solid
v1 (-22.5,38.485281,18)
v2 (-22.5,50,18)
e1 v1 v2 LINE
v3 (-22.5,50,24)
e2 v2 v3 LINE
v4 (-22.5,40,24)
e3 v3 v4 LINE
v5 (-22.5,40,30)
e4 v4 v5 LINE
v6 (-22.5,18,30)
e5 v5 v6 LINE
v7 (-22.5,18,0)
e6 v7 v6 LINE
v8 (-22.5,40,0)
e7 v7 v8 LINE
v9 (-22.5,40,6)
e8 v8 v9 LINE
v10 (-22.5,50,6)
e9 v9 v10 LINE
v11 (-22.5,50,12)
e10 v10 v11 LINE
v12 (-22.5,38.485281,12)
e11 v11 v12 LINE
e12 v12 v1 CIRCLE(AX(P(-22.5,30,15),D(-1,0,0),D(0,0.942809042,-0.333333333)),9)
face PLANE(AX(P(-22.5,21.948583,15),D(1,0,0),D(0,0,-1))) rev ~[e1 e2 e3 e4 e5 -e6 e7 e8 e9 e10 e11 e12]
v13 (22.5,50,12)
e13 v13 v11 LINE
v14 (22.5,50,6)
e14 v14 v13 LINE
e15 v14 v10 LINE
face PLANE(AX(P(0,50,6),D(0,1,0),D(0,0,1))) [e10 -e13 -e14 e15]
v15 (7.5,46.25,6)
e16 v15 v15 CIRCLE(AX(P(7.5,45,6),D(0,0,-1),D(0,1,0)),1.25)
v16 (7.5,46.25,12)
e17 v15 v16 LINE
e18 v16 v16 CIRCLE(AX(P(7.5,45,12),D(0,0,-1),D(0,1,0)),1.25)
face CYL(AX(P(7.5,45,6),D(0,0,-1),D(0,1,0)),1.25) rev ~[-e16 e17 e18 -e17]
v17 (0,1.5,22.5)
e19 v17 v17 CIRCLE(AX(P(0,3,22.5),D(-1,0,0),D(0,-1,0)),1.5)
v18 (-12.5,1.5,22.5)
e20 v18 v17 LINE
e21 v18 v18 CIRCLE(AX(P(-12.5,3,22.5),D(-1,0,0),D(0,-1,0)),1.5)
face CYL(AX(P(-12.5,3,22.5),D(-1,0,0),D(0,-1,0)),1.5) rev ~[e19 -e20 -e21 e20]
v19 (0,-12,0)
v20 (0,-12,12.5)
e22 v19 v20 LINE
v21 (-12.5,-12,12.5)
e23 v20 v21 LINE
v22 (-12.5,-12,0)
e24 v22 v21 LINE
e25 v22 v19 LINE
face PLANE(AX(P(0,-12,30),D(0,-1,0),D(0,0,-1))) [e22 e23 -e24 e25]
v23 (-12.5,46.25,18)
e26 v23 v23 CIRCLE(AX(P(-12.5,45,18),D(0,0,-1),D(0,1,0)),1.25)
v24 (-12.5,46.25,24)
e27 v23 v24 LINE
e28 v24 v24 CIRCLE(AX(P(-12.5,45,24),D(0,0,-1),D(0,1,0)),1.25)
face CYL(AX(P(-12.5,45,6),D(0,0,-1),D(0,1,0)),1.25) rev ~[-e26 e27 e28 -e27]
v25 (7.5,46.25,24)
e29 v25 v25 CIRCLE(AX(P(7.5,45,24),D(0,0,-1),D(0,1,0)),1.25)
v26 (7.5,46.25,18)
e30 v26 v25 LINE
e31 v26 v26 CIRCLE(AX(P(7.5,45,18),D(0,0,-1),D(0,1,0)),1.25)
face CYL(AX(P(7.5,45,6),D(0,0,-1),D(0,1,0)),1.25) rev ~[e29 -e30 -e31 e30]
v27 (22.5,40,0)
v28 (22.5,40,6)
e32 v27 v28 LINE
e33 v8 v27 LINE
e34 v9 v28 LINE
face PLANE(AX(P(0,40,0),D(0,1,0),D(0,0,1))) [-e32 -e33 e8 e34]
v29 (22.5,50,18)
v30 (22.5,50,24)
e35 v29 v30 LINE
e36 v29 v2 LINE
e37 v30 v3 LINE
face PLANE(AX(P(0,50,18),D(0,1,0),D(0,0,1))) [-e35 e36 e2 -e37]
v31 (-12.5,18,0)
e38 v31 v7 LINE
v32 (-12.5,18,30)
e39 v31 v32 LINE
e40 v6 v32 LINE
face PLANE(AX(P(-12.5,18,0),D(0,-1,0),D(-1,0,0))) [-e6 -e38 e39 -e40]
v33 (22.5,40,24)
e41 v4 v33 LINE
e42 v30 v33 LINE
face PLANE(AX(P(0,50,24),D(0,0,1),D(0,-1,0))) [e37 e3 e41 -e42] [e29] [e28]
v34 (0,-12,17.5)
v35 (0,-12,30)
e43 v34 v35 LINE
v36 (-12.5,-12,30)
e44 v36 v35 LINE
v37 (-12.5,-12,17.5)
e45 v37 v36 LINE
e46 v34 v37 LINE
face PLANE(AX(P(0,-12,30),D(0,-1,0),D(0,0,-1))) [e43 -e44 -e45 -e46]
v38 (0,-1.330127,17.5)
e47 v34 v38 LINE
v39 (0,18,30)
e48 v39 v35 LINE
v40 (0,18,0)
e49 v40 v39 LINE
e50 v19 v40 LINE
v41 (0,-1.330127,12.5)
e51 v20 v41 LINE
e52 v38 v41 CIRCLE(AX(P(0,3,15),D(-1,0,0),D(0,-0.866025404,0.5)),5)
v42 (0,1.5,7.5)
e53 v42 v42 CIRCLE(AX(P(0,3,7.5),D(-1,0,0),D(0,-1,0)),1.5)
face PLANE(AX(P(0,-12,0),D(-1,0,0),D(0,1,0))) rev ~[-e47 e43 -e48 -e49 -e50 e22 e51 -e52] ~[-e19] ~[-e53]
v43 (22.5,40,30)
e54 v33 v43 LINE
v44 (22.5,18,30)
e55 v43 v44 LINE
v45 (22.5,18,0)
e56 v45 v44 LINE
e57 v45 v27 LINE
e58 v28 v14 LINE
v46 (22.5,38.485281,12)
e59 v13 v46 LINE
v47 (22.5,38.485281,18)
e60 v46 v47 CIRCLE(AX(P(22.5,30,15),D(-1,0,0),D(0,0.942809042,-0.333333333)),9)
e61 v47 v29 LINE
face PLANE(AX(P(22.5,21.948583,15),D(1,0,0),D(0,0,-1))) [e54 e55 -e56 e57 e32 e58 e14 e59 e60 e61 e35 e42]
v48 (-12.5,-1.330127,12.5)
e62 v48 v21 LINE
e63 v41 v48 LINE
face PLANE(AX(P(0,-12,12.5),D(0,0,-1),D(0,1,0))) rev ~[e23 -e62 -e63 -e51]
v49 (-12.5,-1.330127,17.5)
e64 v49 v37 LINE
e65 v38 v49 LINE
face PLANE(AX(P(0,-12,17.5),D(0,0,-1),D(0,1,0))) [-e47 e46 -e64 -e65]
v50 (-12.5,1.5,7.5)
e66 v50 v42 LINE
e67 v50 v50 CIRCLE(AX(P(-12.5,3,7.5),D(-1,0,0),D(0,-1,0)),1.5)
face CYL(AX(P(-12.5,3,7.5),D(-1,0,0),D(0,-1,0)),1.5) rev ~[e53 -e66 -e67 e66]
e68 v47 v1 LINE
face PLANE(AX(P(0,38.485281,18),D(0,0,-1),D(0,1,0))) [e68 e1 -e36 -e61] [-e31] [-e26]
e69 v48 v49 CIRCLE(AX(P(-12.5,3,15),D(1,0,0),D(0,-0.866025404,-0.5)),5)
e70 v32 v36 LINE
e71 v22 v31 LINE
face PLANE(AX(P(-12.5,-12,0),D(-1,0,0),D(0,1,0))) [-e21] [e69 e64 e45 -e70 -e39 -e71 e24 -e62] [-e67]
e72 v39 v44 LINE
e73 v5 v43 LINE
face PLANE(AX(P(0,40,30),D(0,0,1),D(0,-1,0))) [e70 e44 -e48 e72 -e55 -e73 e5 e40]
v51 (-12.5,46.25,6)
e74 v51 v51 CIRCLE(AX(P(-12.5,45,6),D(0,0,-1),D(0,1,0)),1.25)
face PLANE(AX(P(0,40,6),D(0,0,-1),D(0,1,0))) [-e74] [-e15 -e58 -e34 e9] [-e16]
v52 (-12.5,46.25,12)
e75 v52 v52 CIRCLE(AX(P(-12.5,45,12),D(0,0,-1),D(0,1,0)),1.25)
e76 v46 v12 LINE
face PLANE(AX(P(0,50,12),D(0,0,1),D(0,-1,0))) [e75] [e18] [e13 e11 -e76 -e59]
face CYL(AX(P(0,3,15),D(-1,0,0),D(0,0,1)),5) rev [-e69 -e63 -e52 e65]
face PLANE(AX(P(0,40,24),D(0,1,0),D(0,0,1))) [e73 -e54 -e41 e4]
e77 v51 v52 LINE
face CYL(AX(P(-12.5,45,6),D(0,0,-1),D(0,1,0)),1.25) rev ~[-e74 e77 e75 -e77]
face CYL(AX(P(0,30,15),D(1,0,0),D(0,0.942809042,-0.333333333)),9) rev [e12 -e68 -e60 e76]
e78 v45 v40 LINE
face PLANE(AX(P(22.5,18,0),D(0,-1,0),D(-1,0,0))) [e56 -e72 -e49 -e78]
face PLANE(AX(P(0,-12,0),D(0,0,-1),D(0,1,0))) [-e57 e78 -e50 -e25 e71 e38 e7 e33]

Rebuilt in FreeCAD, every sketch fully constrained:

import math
import FreeCAD as App
import Part
import Sketcher
from FreeCAD import Vector


def add_polygon(sketch, points):
    """Adds a closed chain of lines whose ends are joined by coincident constraints."""
    first, n = sketch.GeometryCount, len(points)
    for a, b in zip(points, points[1:] + points[:1]):
        sketch.addGeometry(Part.LineSegment(App.Vector(*a, 0), App.Vector(*b, 0)), False)
    for i in range(n):
        sketch.addConstraint(Sketcher.Constraint("Coincident", first + i, 2, first + (i + 1) % n, 1))

doc = App.newDocument("Part")
params = doc.addObject("Spreadsheet::Sheet", "Params")
for row, (alias, value) in enumerate([
    ("sketch1_diameter", "10 mm"),
    ("sketch1_radius", "9 mm"),
    ("sketch1_width", "10 mm"),
    ("sketch1_width2", "52 mm"),
    ("sketch1_height", "6 mm"),
    ("pad1_length", "45 mm"),
    ("sketch2_width", "10 mm"),
    ("sketch2_height", "30 mm"),
    ("pocket1_length", "45 mm"),
    ("sketch3_diameter", "3 mm"),
    ("pocket2_length", "45 mm"),
    ("sketch4_diameter", "3 mm"),
    ("pocket3_length", "45 mm"),
    ("sketch5_width", "10 mm"),
    ("sketch5_height", "30 mm"),
    ("pocket4_length", "45 mm"),
    ("sketch6_height", "30 mm"),
    ("sketch6_width", "12.5 mm"),
    ("pocket5_length", "45 mm"),
    ("sketch7_height", "5 mm"),
    ("pocket6_length", "45 mm"),
    ("sketch8_diameter", "2.5 mm"),
    ("pocket7_length", "150 mm"),
], start=1):
    params.set(f"A{row}", alias)
    params.set(f"B{row}", "=" + value)
    params.setAlias(f"B{row}", alias)

body = doc.addObject("PartDesign::Body", "Body")

# Sketch on YZ plane
sketch1 = doc.addObject("Sketcher::SketchObject", "Sketch")
body.addObject(sketch1)
sketch1.AttachmentSupport = (doc.YZ_Plane, [""])
sketch1.MapMode = "FlatFace"
sketch1.addGeometry([
    Part.LineSegment(Vector(50, 24, 0), Vector(40, 24, 0)),  # 0
    Part.LineSegment(Vector(40, 24, 0), Vector(40, 30, 0)),  # 1
    Part.LineSegment(Vector(40, 30, 0), Vector(-12, 30, 0)),  # 2
    Part.LineSegment(Vector(-12, 30, 0), Vector(-12, 0, 0)),  # 3
    Part.LineSegment(Vector(-12, 0, 0), Vector(40, 0, 0)),  # 4
    Part.LineSegment(Vector(40, 0, 0), Vector(40, 6, 0)),  # 5
    Part.LineSegment(Vector(40, 6, 0), Vector(50, 6, 0)),  # 6
    Part.LineSegment(Vector(50, 6, 0), Vector(50, 12, 0)),  # 7
    Part.LineSegment(Vector(50, 12, 0), Vector(38, 12, 0)),  # 8
    Part.ArcOfCircle(Part.Circle(Vector(30, 15, 0), Vector(0, 0, 1), 9), math.radians(19), math.radians(341)),  # 9
    Part.LineSegment(Vector(38, 18, 0), Vector(50, 18, 0)),  # 10
    Part.LineSegment(Vector(50, 18, 0), Vector(50, 24, 0)),  # 11
    Part.Circle(Vector(3, 15, 0), Vector(0, 0, 1), 5),  # 12
], False)
sketch1.addConstraint([
    Sketcher.Constraint("Coincident", 0, 2, 1, 1),
    Sketcher.Constraint("Coincident", 1, 2, 2, 1),
    Sketcher.Constraint("Coincident", 2, 2, 3, 1),
    Sketcher.Constraint("Coincident", 3, 2, 4, 1),
    Sketcher.Constraint("Coincident", 4, 2, 5, 1),
    Sketcher.Constraint("Coincident", 5, 2, 6, 1),
    Sketcher.Constraint("Coincident", 6, 2, 7, 1),
    Sketcher.Constraint("Coincident", 7, 2, 8, 1),
    Sketcher.Constraint("Coincident", 8, 2, 9, 2),
    Sketcher.Constraint("Coincident", 9, 1, 10, 1),
    Sketcher.Constraint("Coincident", 10, 2, 11, 1),
    Sketcher.Constraint("Coincident", 11, 2, 0, 1),
    Sketcher.Constraint("Horizontal", 0),
    Sketcher.Constraint("Vertical", 1),
    Sketcher.Constraint("Horizontal", 2),
    Sketcher.Constraint("Vertical", 3),
    Sketcher.Constraint("Horizontal", 4),
    Sketcher.Constraint("Vertical", 5),
    Sketcher.Constraint("Horizontal", 6),
    Sketcher.Constraint("Vertical", 7),
    Sketcher.Constraint("Horizontal", 8),
    Sketcher.Constraint("Horizontal", 10),
    Sketcher.Constraint("Vertical", 11),
    Sketcher.Constraint("PointOnObject", 3, 2, -1),
    Sketcher.Constraint("Horizontal", 9, 3, 12, 3),
    Sketcher.Constraint("Vertical", 1, 2, 4, 2),
    Sketcher.Constraint("Vertical", 8, 2, 9, 1),
    Sketcher.Constraint("Vertical", 7, 2, 10, 2),
    Sketcher.Constraint("Equal", 1, 5),
    Sketcher.Constraint("Equal", 5, 7),
    Sketcher.Constraint("Equal", 7, 11),
    Sketcher.Constraint("Diameter", 12, 10.0),
    Sketcher.Constraint("Radius", 9, 9.0),
    Sketcher.Constraint("DistanceX", 0, 2, 0, 1, 10.0),
    Sketcher.Constraint("DistanceX", 2, 2, 2, 1, 52.0),
    Sketcher.Constraint("DistanceY", 1, 1, 1, 2, 6.0),
    Sketcher.Constraint("DistanceY", 3, 2, 3, 1, 30.0),
    Sketcher.Constraint("DistanceX", -1, 1, 9, 3, 30.0),
    Sketcher.Constraint("DistanceX", -1, 1, 12, 3, 3.0),
    Sketcher.Constraint("DistanceX", -1, 1, 0, 2, 40.0),
])
sketch1.setExpression("Constraints[31]", "Params.sketch1_diameter")
sketch1.setExpression("Constraints[32]", "Params.sketch1_radius")
sketch1.setExpression("Constraints[33]", "Params.sketch1_width")
sketch1.setExpression("Constraints[34]", "Params.sketch1_width2")
sketch1.setExpression("Constraints[35]", "Params.sketch1_height")
pad1 = doc.addObject("PartDesign::Pad", "Pad")
body.addObject(pad1)
pad1.Profile = sketch1
pad1.setExpression("Length", "Params.pad1_length")
pad1.Midplane = True

# Sketch on XY plane
sketch2 = doc.addObject("Sketcher::SketchObject", "Sketch001")
body.addObject(sketch2)
sketch2.AttachmentSupport = (doc.XY_Plane, [""])
sketch2.MapMode = "FlatFace"
add_polygon(sketch2, [(-12, 18), (-12, -12), (-22, -12), (-22, 18)])  # lines 0-3
sketch2.addConstraint([
    Sketcher.Constraint("Vertical", 0),
    Sketcher.Constraint("Horizontal", 1),
    Sketcher.Constraint("Vertical", 2),
    Sketcher.Constraint("Horizontal", 3),
    Sketcher.Constraint("DistanceX", 1, 2, 1, 1, 10.0),
    Sketcher.Constraint("DistanceY", 0, 2, 0, 1, 30.0),
    Sketcher.Constraint("DistanceY", 0, 2, -1, 1, 12.0),
    Sketcher.Constraint("DistanceX", 0, 2, -1, 1, 12.5),
])
sketch2.setExpression("Constraints[8]", "Params.sketch2_width")
sketch2.setExpression("Constraints[9]", "Params.sketch2_height")
pocket1 = doc.addObject("PartDesign::Pocket", "Pocket")
body.addObject(pocket1)
pocket1.Profile = sketch2
pocket1.setExpression("Length", "Params.pocket1_length")
pocket1.Reversed = True

# Sketch on YZ plane
sketch3 = doc.addObject("Sketcher::SketchObject", "Sketch002")
body.addObject(sketch3)
sketch3.AttachmentSupport = (doc.YZ_Plane, [""])
sketch3.MapMode = "FlatFace"
sketch3.AttachmentOffset = App.Placement(Vector(0, 0, -12.5), App.Rotation())
sketch3.addGeometry(Part.Circle(Vector(3, 22.5, 0), Vector(0, 0, 1), 1.5), False)
sketch3.addConstraint([
    Sketcher.Constraint("Diameter", 0, 3.0),
    Sketcher.Constraint("DistanceX", -1, 1, 0, 3, 3.0),
    Sketcher.Constraint("DistanceY", -1, 1, 0, 3, 22.5),
])
sketch3.setExpression("Constraints[0]", "Params.sketch3_diameter")
pocket2 = doc.addObject("PartDesign::Pocket", "Pocket001")
body.addObject(pocket2)
pocket2.Profile = sketch3
pocket2.setExpression("Length", "Params.pocket2_length")
pocket2.Reversed = True

# Sketch on YZ plane
sketch4 = doc.addObject("Sketcher::SketchObject", "Sketch003")
body.addObject(sketch4)
sketch4.AttachmentSupport = (doc.YZ_Plane, [""])
sketch4.MapMode = "FlatFace"
sketch4.AttachmentOffset = App.Placement(Vector(0, 0, -12.5), App.Rotation())
sketch4.addGeometry(Part.Circle(Vector(3, 7.5, 0), Vector(0, 0, 1), 1.5), False)
sketch4.addConstraint([
    Sketcher.Constraint("Diameter", 0, 3.0),
    Sketcher.Constraint("DistanceX", -1, 1, 0, 3, 3.0),
    Sketcher.Constraint("DistanceY", -1, 1, 0, 3, 7.5),
])
sketch4.setExpression("Constraints[0]", "Params.sketch4_diameter")
pocket3 = doc.addObject("PartDesign::Pocket", "Pocket002")
body.addObject(pocket3)
pocket3.Profile = sketch4
pocket3.setExpression("Length", "Params.pocket3_length")
pocket3.Reversed = True

# Sketch on XY plane
sketch5 = doc.addObject("Sketcher::SketchObject", "Sketch004")
body.addObject(sketch5)
sketch5.AttachmentSupport = (doc.XY_Plane, [""])
sketch5.MapMode = "FlatFace"
add_polygon(sketch5, [(10, 18), (10, -12), (0, -12), (0, 18)])  # lines 0-3
sketch5.addConstraint([
    Sketcher.Constraint("Vertical", 0),
    Sketcher.Constraint("Horizontal", 1),
    Sketcher.Constraint("Vertical", 2),
    Sketcher.Constraint("Horizontal", 3),
    Sketcher.Constraint("PointOnObject", 1, 2, -2),
    Sketcher.Constraint("DistanceX", 1, 2, 1, 1, 10.0),
    Sketcher.Constraint("DistanceY", 0, 2, 0, 1, 30.0),
    Sketcher.Constraint("DistanceY", 0, 2, -1, 1, 12.0),
])
sketch5.setExpression("Constraints[9]", "Params.sketch5_width")
sketch5.setExpression("Constraints[10]", "Params.sketch5_height")
pocket4 = doc.addObject("PartDesign::Pocket", "Pocket003")
body.addObject(pocket4)
pocket4.Profile = sketch5
pocket4.setExpression("Length", "Params.pocket4_length")
pocket4.Reversed = True

# Sketch on XY plane
sketch6 = doc.addObject("Sketcher::SketchObject", "Sketch005")
body.addObject(sketch6)
sketch6.AttachmentSupport = (doc.XY_Plane, [""])
sketch6.MapMode = "FlatFace"
add_polygon(sketch6, [(22, 18), (22, -12), (10, -12), (10, 18)])  # lines 0-3
sketch6.addConstraint([
    Sketcher.Constraint("Vertical", 0),
    Sketcher.Constraint("Horizontal", 1),
    Sketcher.Constraint("Vertical", 2),
    Sketcher.Constraint("Horizontal", 3),
    Sketcher.Constraint("DistanceY", 0, 2, 0, 1, 30.0),
    Sketcher.Constraint("DistanceX", 1, 2, 1, 1, 12.5),
    Sketcher.Constraint("DistanceY", 0, 2, -1, 1, 12.0),
    Sketcher.Constraint("DistanceX", -1, 1, 1, 2, 10.0),
])
sketch6.setExpression("Constraints[8]", "Params.sketch6_height")
sketch6.setExpression("Constraints[9]", "Params.sketch6_width")
pocket5 = doc.addObject("PartDesign::Pocket", "Pocket004")
body.addObject(pocket5)
pocket5.Profile = sketch6
pocket5.setExpression("Length", "Params.pocket5_length")
pocket5.Reversed = True

# Sketch on YZ plane
sketch7 = doc.addObject("Sketcher::SketchObject", "Sketch006")
body.addObject(sketch7)
sketch7.AttachmentSupport = (doc.YZ_Plane, [""])
sketch7.MapMode = "FlatFace"
add_polygon(sketch7, [(-1, 18), (-12, 18), (-12, 12), (-1, 12)])  # lines 0-3
sketch7.addConstraint([
    Sketcher.Constraint("Horizontal", 0),
    Sketcher.Constraint("Vertical", 1),
    Sketcher.Constraint("Horizontal", 2),
    Sketcher.Constraint("Vertical", 3),
    Sketcher.Constraint("DistanceY", 1, 2, 1, 1, 5.0),
    Sketcher.Constraint("DistanceX", 0, 2, -1, 1, 12.0),
    Sketcher.Constraint("DistanceY", -1, 1, 0, 2, 17.5),
    Sketcher.Constraint("DistanceX", 0, 2, 0, 1, 10.669873),
])
sketch7.setExpression("Constraints[8]", "Params.sketch7_height")
pocket6 = doc.addObject("PartDesign::Pocket", "Pocket005")
body.addObject(pocket6)
pocket6.Profile = sketch7
pocket6.setExpression("Length", "Params.pocket6_length")

# Sketch on XY plane
sketch8 = doc.addObject("Sketcher::SketchObject", "Sketch007")
body.addObject(sketch8)
sketch8.AttachmentSupport = (doc.XY_Plane, [""])
sketch8.MapMode = "FlatFace"
sketch8.AttachmentOffset = App.Placement(Vector(0, 0, 6), App.Rotation())
sketch8.addGeometry([
    Part.Circle(Vector(-12.5, 45, 0), Vector(0, 0, 1), 1.2),
    Part.Circle(Vector(7.5, 45, 0), Vector(0, 0, 1), 1.2),
], False)
sketch8.addConstraint([
    Sketcher.Constraint("Equal", 0, 1),
    Sketcher.Constraint("Horizontal", 0, 3, 1, 3),
    Sketcher.Constraint("Diameter", 0, 2.5),
    Sketcher.Constraint("DistanceY", -1, 1, 0, 3, 45.0),
    Sketcher.Constraint("DistanceX", 0, 3, 1, 3, 20.0),
    Sketcher.Constraint("DistanceX", 0, 3, -1, 1, 12.5),
])
sketch8.setExpression("Constraints[2]", "Params.sketch8_diameter")
pocket7 = doc.addObject("PartDesign::Pocket", "Pocket006")
body.addObject(pocket7)
pocket7.Profile = sketch8
pocket7.setExpression("Length", "Params.pocket7_length")
pocket7.Reversed = True

doc.recompute()
